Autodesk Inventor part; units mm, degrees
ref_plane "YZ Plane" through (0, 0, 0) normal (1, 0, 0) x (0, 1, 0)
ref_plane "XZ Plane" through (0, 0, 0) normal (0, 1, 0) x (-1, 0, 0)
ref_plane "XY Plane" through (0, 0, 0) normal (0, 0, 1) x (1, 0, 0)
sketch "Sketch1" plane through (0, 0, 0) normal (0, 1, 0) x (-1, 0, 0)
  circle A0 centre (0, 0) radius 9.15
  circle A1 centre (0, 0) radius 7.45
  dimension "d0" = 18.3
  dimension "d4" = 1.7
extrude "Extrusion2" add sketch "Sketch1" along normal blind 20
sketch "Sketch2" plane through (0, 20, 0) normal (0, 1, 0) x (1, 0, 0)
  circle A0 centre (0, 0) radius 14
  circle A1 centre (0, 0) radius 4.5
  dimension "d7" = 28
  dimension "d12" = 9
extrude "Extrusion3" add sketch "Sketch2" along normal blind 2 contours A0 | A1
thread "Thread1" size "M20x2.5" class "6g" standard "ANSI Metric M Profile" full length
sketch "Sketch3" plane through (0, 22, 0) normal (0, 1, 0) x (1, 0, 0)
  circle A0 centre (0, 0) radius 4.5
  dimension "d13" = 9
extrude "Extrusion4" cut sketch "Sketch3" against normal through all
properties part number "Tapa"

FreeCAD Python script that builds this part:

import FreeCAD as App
import Part
import Sketcher
from FreeCAD import Vector

doc = App.newDocument("Part")
body = doc.addObject("PartDesign::Body", "Body")

sketch1 = body.newObject("Sketcher::SketchObject", "Sketch")
sketch1.AttachmentSupport = (doc.getObject("XZ_Plane"), [""])
sketch1.MapMode = "FlatFace"
sketch1.addGeometry([
    Part.Circle(Vector(0, 0, 0), Vector(0, 0, 1), 9),
    Part.Circle(Vector(0, 0, 0), Vector(0, 0, 1), 7),
], False)
sketch1.addConstraint([
    Sketcher.Constraint("Coincident", 0, 3, -1, 1),
    Sketcher.Constraint("Coincident", 1, 3, -1, 1),
    Sketcher.Constraint("Diameter", 0, 18.3),
    Sketcher.Constraint("Diameter", 1, 14.9),
])
pad1 = body.newObject("PartDesign::Pad", "Pad")
pad1.Profile = sketch1
pad1.Length = 20
pad1.Reversed = True

sketch2 = body.newObject("Sketcher::SketchObject", "Sketch001")
sketch2.AttachmentSupport = (doc.getObject("XZ_Plane"), [""])
sketch2.MapMode = "FlatFace"
sketch2.AttachmentOffset = App.Placement(Vector(0, 0, -20), App.Rotation())
sketch2.addGeometry(Part.Circle(Vector(0, 0, 0), Vector(0, 0, 1), 14), False)
sketch2.addConstraint([
    Sketcher.Constraint("Coincident", 0, 3, -1, 1),
    Sketcher.Constraint("Diameter", 0, 28.0),
])
pad2 = body.newObject("PartDesign::Pad", "Pad001")
pad2.Profile = sketch2
pad2.Length = 2
pad2.Reversed = True

sketch3 = body.newObject("Sketcher::SketchObject", "Sketch002")
sketch3.AttachmentSupport = (doc.getObject("XZ_Plane"), [""])
sketch3.MapMode = "FlatFace"
sketch3.AttachmentOffset = App.Placement(Vector(0, 0, -22), App.Rotation())
sketch3.addGeometry(Part.Circle(Vector(0, 0, 0), Vector(0, 0, 1), 4.5), False)
sketch3.addConstraint([
    Sketcher.Constraint("Coincident", 0, 3, -1, 1),
    Sketcher.Constraint("Diameter", 0, 9.0),
])
pocket1 = body.newObject("PartDesign::Pocket", "Pocket")
pocket1.Profile = sketch3
pocket1.Type = "ThroughAll"
pocket1.Reversed = True

doc.recompute()
